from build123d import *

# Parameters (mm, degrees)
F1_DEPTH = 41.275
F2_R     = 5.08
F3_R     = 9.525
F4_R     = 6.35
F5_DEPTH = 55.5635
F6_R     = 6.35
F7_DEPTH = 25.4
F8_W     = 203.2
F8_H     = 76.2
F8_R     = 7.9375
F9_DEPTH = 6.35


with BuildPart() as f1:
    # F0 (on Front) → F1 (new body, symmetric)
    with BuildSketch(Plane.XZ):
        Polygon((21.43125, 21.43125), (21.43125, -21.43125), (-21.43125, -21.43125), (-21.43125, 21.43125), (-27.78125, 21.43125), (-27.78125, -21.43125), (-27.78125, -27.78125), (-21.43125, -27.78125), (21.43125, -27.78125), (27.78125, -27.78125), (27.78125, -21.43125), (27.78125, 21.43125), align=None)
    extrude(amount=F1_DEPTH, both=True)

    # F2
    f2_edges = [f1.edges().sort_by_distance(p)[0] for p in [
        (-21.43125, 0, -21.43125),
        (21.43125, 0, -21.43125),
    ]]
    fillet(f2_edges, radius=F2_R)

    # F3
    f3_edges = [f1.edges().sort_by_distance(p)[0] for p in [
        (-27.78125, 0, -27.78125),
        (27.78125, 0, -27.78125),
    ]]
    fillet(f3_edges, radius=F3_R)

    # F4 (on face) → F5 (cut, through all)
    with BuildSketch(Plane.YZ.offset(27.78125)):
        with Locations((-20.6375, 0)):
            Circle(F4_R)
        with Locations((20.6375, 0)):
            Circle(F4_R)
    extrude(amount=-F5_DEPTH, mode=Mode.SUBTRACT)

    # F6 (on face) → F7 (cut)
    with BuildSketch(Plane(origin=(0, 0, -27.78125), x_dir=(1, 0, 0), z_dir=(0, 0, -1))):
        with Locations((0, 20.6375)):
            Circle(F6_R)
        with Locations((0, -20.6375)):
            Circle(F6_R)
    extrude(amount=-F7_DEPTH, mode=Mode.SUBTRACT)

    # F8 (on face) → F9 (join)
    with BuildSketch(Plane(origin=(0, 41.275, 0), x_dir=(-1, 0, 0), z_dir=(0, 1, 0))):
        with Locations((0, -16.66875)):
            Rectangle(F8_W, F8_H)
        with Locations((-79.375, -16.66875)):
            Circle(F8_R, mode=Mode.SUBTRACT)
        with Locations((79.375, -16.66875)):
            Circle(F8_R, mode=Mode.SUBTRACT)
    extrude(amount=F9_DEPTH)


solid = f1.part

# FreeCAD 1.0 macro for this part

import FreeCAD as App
import Part
import Sketcher

V = App.Vector
Q = App.Units.Quantity


def edges_at(feature, points):
    """Names of the edges that pass closest to the given points."""
    edges = feature.Shape.Edges
    near = lambda p: min(range(len(edges)), key=lambda i: edges[i].distToShape(Part.Vertex(*p))[0])
    return sorted({f"Edge{near(p) + 1}" for p in points})


def add_polygon(sketch, points):
    """Adds a closed chain of lines whose ends are joined by coincident constraints."""
    first, n = sketch.GeometryCount, len(points)
    for a, b in zip(points, points[1:] + points[:1]):
        sketch.addGeometry(Part.LineSegment(App.Vector(*a, 0), App.Vector(*b, 0)), False)
    for i in range(n):
        sketch.addConstraint(Sketcher.Constraint("Coincident", first + i, 2, first + (i + 1) % n, 1))

doc = App.newDocument("Part")
body = doc.addObject("PartDesign::Body", "Body")

# Sketch on XZ plane
sketch1 = doc.addObject("Sketcher::SketchObject", "Sketch")
body.addObject(sketch1)
sketch1.AttachmentSupport = (doc.XZ_Plane, [""])
sketch1.MapMode = "FlatFace"
add_polygon(sketch1, [(21, 21), (21, -21), (-21, -21), (-21, 21), (-28, 21), (-28, -28), (28, -28), (28, 21)])  # lines 0-7
sketch1.addConstraint([
    Sketcher.Constraint("Vertical", 0),
    Sketcher.Constraint("Horizontal", 1),
    Sketcher.Constraint("Vertical", 2),
    Sketcher.Constraint("Horizontal", 3),
    Sketcher.Constraint("Vertical", 4),
    Sketcher.Constraint("Horizontal", 5),
    Sketcher.Constraint("Vertical", 6),
    Sketcher.Constraint("Horizontal", 7),
    Sketcher.Constraint("Symmetric", 0, 2, 2, 2, -1, 1),
    Sketcher.Constraint("Symmetric", 3, 2, 6, 2, -2),
    Sketcher.Constraint("Equal", 1, 0),
    Sketcher.Constraint("DistanceX", 3, 2, 3, 1, Q("0.25 in")),
    Sketcher.Constraint("DistanceX", 1, 2, 1, 1, Q("1.6875 in")),
    Sketcher.Constraint("DistanceY", 4, 2, 4, 1, Q("1.9375 in")),
])
pad1 = doc.addObject("PartDesign::Pad", "Pad")
body.addObject(pad1)
pad1.Profile = sketch1
pad1.Length = Q("3.25 in")
pad1.Midplane = True
doc.recompute()

fillet = doc.addObject("PartDesign::Fillet", "Fillet")
body.addObject(fillet)
fillet.Base = (pad1, edges_at(pad1, [(-21.431, 0, -21.431), (21.431, 0, -21.431)]))
fillet.Radius = Q("0.2 in")
doc.recompute()

fillet2 = doc.addObject("PartDesign::Fillet", "Fillet001")
body.addObject(fillet2)
fillet2.Base = (fillet, edges_at(fillet, [(-27.781, 0, -27.781), (27.781, 0, -27.781)]))
fillet2.Radius = Q("0.375 in")

# Sketch on YZ plane
sketch2 = doc.addObject("Sketcher::SketchObject", "Sketch001")
body.addObject(sketch2)
sketch2.AttachmentSupport = (doc.YZ_Plane, [""])
sketch2.MapMode = "FlatFace"
sketch2.AttachmentOffset = App.Placement(V(0, 0, 1.09375 * 25.4), App.Rotation())
sketch2.addGeometry([
    Part.Circle(V(-21, 0, 0), V(0, 0, 1), 6),
    Part.Circle(V(21, 0, 0), V(0, 0, 1), 6),
], False)
sketch2.addConstraint([
    Sketcher.Constraint("Equal", 0, 1),
    Sketcher.Constraint("Symmetric", 0, 3, 1, 3, -1, 1),
    Sketcher.Constraint("PointOnObject", 0, 3, -1),
    Sketcher.Constraint("Diameter", 0, Q("0.5 in")),
    Sketcher.Constraint("DistanceX", 0, 3, -1, 1, Q("0.8125 in")),
])
pocket1 = doc.addObject("PartDesign::Pocket", "Pocket")
body.addObject(pocket1)
pocket1.Profile = sketch2
pocket1.Type = "ThroughAll"

# Sketch on XY plane
sketch3 = doc.addObject("Sketcher::SketchObject", "Sketch002")
body.addObject(sketch3)
sketch3.AttachmentSupport = (doc.XY_Plane, [""])
sketch3.MapMode = "FlatFace"
sketch3.AttachmentOffset = App.Placement(V(0, 0, -1.09375 * 25.4), App.Rotation())
sketch3.addGeometry([
    Part.Circle(V(0, -21, 0), V(0, 0, 1), 6),
    Part.Circle(V(0, 21, 0), V(0, 0, 1), 6),
], False)
sketch3.addConstraint([
    Sketcher.Constraint("Equal", 0, 1),
    Sketcher.Constraint("Symmetric", 0, 3, 1, 3, -1, 1),
    Sketcher.Constraint("PointOnObject", 0, 3, -2),
    Sketcher.Constraint("Diameter", 0, Q("0.5 in")),
    Sketcher.Constraint("DistanceY", 0, 3, -1, 1, Q("0.8125 in")),
])
pocket2 = doc.addObject("PartDesign::Pocket", "Pocket001")
body.addObject(pocket2)
pocket2.Profile = sketch3
pocket2.Length = Q("1 in")
pocket2.Reversed = True

# Sketch on XZ plane
sketch4 = doc.addObject("Sketcher::SketchObject", "Sketch003")
body.addObject(sketch4)
sketch4.AttachmentSupport = (doc.XZ_Plane, [""])
sketch4.MapMode = "FlatFace"
sketch4.AttachmentOffset = App.Placement(V(0, 0, -1.625 * 25.4), App.Rotation())
add_polygon(sketch4, [(102, 21), (102, -55), (-102, -55), (-102, 21)])  # lines 0-3
sketch4.addGeometry(Part.Circle(V(79, -17, 0), V(0, 0, 1), 8), False)  # 4
sketch4.addGeometry(Part.Circle(V(-79, -17, 0), V(0, 0, 1), 8), False)  # 5
sketch4.addConstraint([
    Sketcher.Constraint("Vertical", 0),
    Sketcher.Constraint("Horizontal", 1),
    Sketcher.Constraint("Vertical", 2),
    Sketcher.Constraint("Horizontal", 3),
    Sketcher.Constraint("Equal", 4, 5),
    Sketcher.Constraint("Symmetric", 4, 3, 5, 3, -2),
    Sketcher.Constraint("DistanceX", 1, 2, 1, 1, Q("8 in")),
    Sketcher.Constraint("DistanceY", 0, 2, 0, 1, Q("3 in")),
    Sketcher.Constraint("Diameter", 4, Q("0.625 in")),
    Sketcher.Constraint("DistanceX", -1, 1, 0, 2, Q("4 in")),
    Sketcher.Constraint("DistanceY", 0, 2, 4, 3, Q("1.5 in")),
    Sketcher.Constraint("DistanceX", 5, 3, 4, 3, Q("6.25 in")),
    Sketcher.Constraint("DistanceY", 4, 3, -1, 1, Q("0.65625 in")),
])
pad2 = doc.addObject("PartDesign::Pad", "Pad001")
body.addObject(pad2)
pad2.Profile = sketch4
pad2.Length = Q("0.25 in")
pad2.Reversed = True

doc.recompute()
